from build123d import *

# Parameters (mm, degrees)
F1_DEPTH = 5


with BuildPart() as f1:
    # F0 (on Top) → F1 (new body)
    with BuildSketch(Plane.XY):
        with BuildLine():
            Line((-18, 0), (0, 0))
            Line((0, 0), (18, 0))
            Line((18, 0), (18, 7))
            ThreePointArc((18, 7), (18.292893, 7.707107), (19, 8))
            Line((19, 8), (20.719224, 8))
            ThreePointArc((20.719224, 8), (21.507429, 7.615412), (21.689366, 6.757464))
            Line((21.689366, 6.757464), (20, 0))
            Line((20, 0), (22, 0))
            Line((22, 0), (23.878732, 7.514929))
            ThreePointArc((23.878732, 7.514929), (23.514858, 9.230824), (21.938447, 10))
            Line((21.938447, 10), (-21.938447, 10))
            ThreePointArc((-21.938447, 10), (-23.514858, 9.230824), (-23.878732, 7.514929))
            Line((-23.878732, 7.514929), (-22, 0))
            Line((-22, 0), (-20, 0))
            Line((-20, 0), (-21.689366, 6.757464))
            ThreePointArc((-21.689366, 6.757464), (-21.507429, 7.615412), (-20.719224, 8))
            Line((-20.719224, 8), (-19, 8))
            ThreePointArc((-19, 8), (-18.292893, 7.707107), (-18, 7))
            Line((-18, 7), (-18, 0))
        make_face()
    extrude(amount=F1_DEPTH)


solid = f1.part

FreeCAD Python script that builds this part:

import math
import FreeCAD as App
import Part
import Sketcher

V = App.Vector

doc = App.newDocument("Part")
body = doc.addObject("PartDesign::Body", "Body")

sketch1 = doc.addObject("Sketcher::SketchObject", "Sketch")
body.addObject(sketch1)
sketch1.AttachmentSupport = (doc.XY_Plane, [""])
sketch1.MapMode = "FlatFace"
sketch1.addGeometry([
    Part.LineSegment(V(-18, 0, 0), V(18, 0, 0)),
    Part.LineSegment(V(18, 0, 0), V(18, 7, 0)),
    Part.ArcOfCircle(Part.Circle(V(18.999999, 7.000001, 0), V(0, 0, 1), 0.999999), math.radians(89.999957), math.radians(180.000043)),
    Part.LineSegment(V(19, 8, 0), V(20.719224, 8, 0)),
    Part.ArcOfCircle(Part.Circle(V(20.719223, 7, 0), V(0, 0, 1), 1), math.radians(-14.036248), math.radians(89.999959)),
    Part.LineSegment(V(21.689366, 6.757464, 0), V(20, 0, 0)),
    Part.LineSegment(V(20, 0, 0), V(22, 0, 0)),
    Part.LineSegment(V(22, 0, 0), V(23.878732, 7.514929, 0)),
    Part.ArcOfCircle(Part.Circle(V(21.938447, 8, 0), V(0, 0, 1), 2), math.radians(-14.03623), math.radians(89.999992)),
    Part.LineSegment(V(21.938447, 10, 0), V(-21.938447, 10, 0)),
    Part.ArcOfCircle(Part.Circle(V(-21.938447, 8, 0), V(0, 0, 1), 2), math.radians(90.000008), math.radians(194.03623)),
    Part.LineSegment(V(-23.878732, 7.514929, 0), V(-22, 0, 0)),
    Part.LineSegment(V(-22, 0, 0), V(-20, 0, 0)),
    Part.LineSegment(V(-20, 0, 0), V(-21.689366, 6.757464, 0)),
    Part.ArcOfCircle(Part.Circle(V(-20.719223, 7, 0), V(0, 0, 1), 1), math.radians(90.000041), math.radians(194.036248)),
    Part.LineSegment(V(-20.719224, 8, 0), V(-19, 8, 0)),
    Part.ArcOfCircle(Part.Circle(V(-18.999999, 7.000001, 0), V(0, 0, 1), 0.999999), math.radians(-0.000043), math.radians(90.000043)),
    Part.LineSegment(V(-18, 7, 0), V(-18, 0, 0)),
], False)
sketch1.addConstraint([
    Sketcher.Constraint("Coincident", 0, 2, 1, 1),
    Sketcher.Constraint("Tangent", 1, 2, 2, 2),
    Sketcher.Constraint("Tangent", 2, 1, 3, 1),
    Sketcher.Constraint("Tangent", 3, 2, 4, 2),
    Sketcher.Constraint("Tangent", 4, 1, 5, 1),
    Sketcher.Constraint("Coincident", 5, 2, 6, 1),
    Sketcher.Constraint("Coincident", 6, 2, 7, 1),
    Sketcher.Constraint("Tangent", 7, 2, 8, 1),
    Sketcher.Constraint("Tangent", 8, 2, 9, 1),
    Sketcher.Constraint("Tangent", 9, 2, 10, 1),
    Sketcher.Constraint("Tangent", 10, 2, 11, 1),
    Sketcher.Constraint("Coincident", 11, 2, 12, 1),
    Sketcher.Constraint("Coincident", 12, 2, 13, 1),
    Sketcher.Constraint("Tangent", 13, 2, 14, 2),
    Sketcher.Constraint("Tangent", 14, 1, 15, 1),
    Sketcher.Constraint("Tangent", 15, 2, 16, 2),
    Sketcher.Constraint("Tangent", 16, 1, 17, 1),
    Sketcher.Constraint("Coincident", 17, 2, 0, 1),
    Sketcher.Constraint("Horizontal", 0),
    Sketcher.Constraint("Vertical", 1),
    Sketcher.Constraint("Horizontal", 3),
    Sketcher.Constraint("Horizontal", 6),
    Sketcher.Constraint("Horizontal", 9),
    Sketcher.Constraint("Horizontal", 12),
    Sketcher.Constraint("Horizontal", 15),
    Sketcher.Constraint("Vertical", 17),
    Sketcher.Constraint("Equal", 2, 4),
    Sketcher.Constraint("Equal", 8, 10),
    Sketcher.Constraint("Equal", 4, 14),
    Sketcher.Constraint("Equal", 14, 16),
    Sketcher.Constraint("Symmetric", 6, 2, 11, 2, -1, 1),
    Sketcher.Constraint("Symmetric", 0, 2, 17, 2, -1, 1),
    Sketcher.Constraint("Symmetric", 4, 3, 14, 3, -2),
    Sketcher.Constraint("Symmetric", 7, 2, 10, 2, -2),
    Sketcher.Constraint("Parallel", 5, 7),
    Sketcher.Constraint("Parallel", 11, 13),
    Sketcher.Constraint("Horizontal", 10, 3, 2, 1),
    Sketcher.Constraint("Radius", 2, 0.999999),
    Sketcher.Constraint("Radius", 8, 2.0),
    Sketcher.Constraint("DistanceX", 0, 1, 0, 2, 36.0),
    Sketcher.Constraint("DistanceX", 6, 1, 6, 2, 2.0),
    Sketcher.Constraint("DistanceY", 1, 1, 1, 2, 7.0),
    Sketcher.Constraint("DistanceX", -1, 1, 5, 2, 20.0),
    Sketcher.Constraint("DistanceX", 3, 1, 3, 2, 1.719224),
])
pad1 = doc.addObject("PartDesign::Pad", "Pad")
body.addObject(pad1)
pad1.Profile = sketch1
pad1.Length = 5

doc.recompute()
